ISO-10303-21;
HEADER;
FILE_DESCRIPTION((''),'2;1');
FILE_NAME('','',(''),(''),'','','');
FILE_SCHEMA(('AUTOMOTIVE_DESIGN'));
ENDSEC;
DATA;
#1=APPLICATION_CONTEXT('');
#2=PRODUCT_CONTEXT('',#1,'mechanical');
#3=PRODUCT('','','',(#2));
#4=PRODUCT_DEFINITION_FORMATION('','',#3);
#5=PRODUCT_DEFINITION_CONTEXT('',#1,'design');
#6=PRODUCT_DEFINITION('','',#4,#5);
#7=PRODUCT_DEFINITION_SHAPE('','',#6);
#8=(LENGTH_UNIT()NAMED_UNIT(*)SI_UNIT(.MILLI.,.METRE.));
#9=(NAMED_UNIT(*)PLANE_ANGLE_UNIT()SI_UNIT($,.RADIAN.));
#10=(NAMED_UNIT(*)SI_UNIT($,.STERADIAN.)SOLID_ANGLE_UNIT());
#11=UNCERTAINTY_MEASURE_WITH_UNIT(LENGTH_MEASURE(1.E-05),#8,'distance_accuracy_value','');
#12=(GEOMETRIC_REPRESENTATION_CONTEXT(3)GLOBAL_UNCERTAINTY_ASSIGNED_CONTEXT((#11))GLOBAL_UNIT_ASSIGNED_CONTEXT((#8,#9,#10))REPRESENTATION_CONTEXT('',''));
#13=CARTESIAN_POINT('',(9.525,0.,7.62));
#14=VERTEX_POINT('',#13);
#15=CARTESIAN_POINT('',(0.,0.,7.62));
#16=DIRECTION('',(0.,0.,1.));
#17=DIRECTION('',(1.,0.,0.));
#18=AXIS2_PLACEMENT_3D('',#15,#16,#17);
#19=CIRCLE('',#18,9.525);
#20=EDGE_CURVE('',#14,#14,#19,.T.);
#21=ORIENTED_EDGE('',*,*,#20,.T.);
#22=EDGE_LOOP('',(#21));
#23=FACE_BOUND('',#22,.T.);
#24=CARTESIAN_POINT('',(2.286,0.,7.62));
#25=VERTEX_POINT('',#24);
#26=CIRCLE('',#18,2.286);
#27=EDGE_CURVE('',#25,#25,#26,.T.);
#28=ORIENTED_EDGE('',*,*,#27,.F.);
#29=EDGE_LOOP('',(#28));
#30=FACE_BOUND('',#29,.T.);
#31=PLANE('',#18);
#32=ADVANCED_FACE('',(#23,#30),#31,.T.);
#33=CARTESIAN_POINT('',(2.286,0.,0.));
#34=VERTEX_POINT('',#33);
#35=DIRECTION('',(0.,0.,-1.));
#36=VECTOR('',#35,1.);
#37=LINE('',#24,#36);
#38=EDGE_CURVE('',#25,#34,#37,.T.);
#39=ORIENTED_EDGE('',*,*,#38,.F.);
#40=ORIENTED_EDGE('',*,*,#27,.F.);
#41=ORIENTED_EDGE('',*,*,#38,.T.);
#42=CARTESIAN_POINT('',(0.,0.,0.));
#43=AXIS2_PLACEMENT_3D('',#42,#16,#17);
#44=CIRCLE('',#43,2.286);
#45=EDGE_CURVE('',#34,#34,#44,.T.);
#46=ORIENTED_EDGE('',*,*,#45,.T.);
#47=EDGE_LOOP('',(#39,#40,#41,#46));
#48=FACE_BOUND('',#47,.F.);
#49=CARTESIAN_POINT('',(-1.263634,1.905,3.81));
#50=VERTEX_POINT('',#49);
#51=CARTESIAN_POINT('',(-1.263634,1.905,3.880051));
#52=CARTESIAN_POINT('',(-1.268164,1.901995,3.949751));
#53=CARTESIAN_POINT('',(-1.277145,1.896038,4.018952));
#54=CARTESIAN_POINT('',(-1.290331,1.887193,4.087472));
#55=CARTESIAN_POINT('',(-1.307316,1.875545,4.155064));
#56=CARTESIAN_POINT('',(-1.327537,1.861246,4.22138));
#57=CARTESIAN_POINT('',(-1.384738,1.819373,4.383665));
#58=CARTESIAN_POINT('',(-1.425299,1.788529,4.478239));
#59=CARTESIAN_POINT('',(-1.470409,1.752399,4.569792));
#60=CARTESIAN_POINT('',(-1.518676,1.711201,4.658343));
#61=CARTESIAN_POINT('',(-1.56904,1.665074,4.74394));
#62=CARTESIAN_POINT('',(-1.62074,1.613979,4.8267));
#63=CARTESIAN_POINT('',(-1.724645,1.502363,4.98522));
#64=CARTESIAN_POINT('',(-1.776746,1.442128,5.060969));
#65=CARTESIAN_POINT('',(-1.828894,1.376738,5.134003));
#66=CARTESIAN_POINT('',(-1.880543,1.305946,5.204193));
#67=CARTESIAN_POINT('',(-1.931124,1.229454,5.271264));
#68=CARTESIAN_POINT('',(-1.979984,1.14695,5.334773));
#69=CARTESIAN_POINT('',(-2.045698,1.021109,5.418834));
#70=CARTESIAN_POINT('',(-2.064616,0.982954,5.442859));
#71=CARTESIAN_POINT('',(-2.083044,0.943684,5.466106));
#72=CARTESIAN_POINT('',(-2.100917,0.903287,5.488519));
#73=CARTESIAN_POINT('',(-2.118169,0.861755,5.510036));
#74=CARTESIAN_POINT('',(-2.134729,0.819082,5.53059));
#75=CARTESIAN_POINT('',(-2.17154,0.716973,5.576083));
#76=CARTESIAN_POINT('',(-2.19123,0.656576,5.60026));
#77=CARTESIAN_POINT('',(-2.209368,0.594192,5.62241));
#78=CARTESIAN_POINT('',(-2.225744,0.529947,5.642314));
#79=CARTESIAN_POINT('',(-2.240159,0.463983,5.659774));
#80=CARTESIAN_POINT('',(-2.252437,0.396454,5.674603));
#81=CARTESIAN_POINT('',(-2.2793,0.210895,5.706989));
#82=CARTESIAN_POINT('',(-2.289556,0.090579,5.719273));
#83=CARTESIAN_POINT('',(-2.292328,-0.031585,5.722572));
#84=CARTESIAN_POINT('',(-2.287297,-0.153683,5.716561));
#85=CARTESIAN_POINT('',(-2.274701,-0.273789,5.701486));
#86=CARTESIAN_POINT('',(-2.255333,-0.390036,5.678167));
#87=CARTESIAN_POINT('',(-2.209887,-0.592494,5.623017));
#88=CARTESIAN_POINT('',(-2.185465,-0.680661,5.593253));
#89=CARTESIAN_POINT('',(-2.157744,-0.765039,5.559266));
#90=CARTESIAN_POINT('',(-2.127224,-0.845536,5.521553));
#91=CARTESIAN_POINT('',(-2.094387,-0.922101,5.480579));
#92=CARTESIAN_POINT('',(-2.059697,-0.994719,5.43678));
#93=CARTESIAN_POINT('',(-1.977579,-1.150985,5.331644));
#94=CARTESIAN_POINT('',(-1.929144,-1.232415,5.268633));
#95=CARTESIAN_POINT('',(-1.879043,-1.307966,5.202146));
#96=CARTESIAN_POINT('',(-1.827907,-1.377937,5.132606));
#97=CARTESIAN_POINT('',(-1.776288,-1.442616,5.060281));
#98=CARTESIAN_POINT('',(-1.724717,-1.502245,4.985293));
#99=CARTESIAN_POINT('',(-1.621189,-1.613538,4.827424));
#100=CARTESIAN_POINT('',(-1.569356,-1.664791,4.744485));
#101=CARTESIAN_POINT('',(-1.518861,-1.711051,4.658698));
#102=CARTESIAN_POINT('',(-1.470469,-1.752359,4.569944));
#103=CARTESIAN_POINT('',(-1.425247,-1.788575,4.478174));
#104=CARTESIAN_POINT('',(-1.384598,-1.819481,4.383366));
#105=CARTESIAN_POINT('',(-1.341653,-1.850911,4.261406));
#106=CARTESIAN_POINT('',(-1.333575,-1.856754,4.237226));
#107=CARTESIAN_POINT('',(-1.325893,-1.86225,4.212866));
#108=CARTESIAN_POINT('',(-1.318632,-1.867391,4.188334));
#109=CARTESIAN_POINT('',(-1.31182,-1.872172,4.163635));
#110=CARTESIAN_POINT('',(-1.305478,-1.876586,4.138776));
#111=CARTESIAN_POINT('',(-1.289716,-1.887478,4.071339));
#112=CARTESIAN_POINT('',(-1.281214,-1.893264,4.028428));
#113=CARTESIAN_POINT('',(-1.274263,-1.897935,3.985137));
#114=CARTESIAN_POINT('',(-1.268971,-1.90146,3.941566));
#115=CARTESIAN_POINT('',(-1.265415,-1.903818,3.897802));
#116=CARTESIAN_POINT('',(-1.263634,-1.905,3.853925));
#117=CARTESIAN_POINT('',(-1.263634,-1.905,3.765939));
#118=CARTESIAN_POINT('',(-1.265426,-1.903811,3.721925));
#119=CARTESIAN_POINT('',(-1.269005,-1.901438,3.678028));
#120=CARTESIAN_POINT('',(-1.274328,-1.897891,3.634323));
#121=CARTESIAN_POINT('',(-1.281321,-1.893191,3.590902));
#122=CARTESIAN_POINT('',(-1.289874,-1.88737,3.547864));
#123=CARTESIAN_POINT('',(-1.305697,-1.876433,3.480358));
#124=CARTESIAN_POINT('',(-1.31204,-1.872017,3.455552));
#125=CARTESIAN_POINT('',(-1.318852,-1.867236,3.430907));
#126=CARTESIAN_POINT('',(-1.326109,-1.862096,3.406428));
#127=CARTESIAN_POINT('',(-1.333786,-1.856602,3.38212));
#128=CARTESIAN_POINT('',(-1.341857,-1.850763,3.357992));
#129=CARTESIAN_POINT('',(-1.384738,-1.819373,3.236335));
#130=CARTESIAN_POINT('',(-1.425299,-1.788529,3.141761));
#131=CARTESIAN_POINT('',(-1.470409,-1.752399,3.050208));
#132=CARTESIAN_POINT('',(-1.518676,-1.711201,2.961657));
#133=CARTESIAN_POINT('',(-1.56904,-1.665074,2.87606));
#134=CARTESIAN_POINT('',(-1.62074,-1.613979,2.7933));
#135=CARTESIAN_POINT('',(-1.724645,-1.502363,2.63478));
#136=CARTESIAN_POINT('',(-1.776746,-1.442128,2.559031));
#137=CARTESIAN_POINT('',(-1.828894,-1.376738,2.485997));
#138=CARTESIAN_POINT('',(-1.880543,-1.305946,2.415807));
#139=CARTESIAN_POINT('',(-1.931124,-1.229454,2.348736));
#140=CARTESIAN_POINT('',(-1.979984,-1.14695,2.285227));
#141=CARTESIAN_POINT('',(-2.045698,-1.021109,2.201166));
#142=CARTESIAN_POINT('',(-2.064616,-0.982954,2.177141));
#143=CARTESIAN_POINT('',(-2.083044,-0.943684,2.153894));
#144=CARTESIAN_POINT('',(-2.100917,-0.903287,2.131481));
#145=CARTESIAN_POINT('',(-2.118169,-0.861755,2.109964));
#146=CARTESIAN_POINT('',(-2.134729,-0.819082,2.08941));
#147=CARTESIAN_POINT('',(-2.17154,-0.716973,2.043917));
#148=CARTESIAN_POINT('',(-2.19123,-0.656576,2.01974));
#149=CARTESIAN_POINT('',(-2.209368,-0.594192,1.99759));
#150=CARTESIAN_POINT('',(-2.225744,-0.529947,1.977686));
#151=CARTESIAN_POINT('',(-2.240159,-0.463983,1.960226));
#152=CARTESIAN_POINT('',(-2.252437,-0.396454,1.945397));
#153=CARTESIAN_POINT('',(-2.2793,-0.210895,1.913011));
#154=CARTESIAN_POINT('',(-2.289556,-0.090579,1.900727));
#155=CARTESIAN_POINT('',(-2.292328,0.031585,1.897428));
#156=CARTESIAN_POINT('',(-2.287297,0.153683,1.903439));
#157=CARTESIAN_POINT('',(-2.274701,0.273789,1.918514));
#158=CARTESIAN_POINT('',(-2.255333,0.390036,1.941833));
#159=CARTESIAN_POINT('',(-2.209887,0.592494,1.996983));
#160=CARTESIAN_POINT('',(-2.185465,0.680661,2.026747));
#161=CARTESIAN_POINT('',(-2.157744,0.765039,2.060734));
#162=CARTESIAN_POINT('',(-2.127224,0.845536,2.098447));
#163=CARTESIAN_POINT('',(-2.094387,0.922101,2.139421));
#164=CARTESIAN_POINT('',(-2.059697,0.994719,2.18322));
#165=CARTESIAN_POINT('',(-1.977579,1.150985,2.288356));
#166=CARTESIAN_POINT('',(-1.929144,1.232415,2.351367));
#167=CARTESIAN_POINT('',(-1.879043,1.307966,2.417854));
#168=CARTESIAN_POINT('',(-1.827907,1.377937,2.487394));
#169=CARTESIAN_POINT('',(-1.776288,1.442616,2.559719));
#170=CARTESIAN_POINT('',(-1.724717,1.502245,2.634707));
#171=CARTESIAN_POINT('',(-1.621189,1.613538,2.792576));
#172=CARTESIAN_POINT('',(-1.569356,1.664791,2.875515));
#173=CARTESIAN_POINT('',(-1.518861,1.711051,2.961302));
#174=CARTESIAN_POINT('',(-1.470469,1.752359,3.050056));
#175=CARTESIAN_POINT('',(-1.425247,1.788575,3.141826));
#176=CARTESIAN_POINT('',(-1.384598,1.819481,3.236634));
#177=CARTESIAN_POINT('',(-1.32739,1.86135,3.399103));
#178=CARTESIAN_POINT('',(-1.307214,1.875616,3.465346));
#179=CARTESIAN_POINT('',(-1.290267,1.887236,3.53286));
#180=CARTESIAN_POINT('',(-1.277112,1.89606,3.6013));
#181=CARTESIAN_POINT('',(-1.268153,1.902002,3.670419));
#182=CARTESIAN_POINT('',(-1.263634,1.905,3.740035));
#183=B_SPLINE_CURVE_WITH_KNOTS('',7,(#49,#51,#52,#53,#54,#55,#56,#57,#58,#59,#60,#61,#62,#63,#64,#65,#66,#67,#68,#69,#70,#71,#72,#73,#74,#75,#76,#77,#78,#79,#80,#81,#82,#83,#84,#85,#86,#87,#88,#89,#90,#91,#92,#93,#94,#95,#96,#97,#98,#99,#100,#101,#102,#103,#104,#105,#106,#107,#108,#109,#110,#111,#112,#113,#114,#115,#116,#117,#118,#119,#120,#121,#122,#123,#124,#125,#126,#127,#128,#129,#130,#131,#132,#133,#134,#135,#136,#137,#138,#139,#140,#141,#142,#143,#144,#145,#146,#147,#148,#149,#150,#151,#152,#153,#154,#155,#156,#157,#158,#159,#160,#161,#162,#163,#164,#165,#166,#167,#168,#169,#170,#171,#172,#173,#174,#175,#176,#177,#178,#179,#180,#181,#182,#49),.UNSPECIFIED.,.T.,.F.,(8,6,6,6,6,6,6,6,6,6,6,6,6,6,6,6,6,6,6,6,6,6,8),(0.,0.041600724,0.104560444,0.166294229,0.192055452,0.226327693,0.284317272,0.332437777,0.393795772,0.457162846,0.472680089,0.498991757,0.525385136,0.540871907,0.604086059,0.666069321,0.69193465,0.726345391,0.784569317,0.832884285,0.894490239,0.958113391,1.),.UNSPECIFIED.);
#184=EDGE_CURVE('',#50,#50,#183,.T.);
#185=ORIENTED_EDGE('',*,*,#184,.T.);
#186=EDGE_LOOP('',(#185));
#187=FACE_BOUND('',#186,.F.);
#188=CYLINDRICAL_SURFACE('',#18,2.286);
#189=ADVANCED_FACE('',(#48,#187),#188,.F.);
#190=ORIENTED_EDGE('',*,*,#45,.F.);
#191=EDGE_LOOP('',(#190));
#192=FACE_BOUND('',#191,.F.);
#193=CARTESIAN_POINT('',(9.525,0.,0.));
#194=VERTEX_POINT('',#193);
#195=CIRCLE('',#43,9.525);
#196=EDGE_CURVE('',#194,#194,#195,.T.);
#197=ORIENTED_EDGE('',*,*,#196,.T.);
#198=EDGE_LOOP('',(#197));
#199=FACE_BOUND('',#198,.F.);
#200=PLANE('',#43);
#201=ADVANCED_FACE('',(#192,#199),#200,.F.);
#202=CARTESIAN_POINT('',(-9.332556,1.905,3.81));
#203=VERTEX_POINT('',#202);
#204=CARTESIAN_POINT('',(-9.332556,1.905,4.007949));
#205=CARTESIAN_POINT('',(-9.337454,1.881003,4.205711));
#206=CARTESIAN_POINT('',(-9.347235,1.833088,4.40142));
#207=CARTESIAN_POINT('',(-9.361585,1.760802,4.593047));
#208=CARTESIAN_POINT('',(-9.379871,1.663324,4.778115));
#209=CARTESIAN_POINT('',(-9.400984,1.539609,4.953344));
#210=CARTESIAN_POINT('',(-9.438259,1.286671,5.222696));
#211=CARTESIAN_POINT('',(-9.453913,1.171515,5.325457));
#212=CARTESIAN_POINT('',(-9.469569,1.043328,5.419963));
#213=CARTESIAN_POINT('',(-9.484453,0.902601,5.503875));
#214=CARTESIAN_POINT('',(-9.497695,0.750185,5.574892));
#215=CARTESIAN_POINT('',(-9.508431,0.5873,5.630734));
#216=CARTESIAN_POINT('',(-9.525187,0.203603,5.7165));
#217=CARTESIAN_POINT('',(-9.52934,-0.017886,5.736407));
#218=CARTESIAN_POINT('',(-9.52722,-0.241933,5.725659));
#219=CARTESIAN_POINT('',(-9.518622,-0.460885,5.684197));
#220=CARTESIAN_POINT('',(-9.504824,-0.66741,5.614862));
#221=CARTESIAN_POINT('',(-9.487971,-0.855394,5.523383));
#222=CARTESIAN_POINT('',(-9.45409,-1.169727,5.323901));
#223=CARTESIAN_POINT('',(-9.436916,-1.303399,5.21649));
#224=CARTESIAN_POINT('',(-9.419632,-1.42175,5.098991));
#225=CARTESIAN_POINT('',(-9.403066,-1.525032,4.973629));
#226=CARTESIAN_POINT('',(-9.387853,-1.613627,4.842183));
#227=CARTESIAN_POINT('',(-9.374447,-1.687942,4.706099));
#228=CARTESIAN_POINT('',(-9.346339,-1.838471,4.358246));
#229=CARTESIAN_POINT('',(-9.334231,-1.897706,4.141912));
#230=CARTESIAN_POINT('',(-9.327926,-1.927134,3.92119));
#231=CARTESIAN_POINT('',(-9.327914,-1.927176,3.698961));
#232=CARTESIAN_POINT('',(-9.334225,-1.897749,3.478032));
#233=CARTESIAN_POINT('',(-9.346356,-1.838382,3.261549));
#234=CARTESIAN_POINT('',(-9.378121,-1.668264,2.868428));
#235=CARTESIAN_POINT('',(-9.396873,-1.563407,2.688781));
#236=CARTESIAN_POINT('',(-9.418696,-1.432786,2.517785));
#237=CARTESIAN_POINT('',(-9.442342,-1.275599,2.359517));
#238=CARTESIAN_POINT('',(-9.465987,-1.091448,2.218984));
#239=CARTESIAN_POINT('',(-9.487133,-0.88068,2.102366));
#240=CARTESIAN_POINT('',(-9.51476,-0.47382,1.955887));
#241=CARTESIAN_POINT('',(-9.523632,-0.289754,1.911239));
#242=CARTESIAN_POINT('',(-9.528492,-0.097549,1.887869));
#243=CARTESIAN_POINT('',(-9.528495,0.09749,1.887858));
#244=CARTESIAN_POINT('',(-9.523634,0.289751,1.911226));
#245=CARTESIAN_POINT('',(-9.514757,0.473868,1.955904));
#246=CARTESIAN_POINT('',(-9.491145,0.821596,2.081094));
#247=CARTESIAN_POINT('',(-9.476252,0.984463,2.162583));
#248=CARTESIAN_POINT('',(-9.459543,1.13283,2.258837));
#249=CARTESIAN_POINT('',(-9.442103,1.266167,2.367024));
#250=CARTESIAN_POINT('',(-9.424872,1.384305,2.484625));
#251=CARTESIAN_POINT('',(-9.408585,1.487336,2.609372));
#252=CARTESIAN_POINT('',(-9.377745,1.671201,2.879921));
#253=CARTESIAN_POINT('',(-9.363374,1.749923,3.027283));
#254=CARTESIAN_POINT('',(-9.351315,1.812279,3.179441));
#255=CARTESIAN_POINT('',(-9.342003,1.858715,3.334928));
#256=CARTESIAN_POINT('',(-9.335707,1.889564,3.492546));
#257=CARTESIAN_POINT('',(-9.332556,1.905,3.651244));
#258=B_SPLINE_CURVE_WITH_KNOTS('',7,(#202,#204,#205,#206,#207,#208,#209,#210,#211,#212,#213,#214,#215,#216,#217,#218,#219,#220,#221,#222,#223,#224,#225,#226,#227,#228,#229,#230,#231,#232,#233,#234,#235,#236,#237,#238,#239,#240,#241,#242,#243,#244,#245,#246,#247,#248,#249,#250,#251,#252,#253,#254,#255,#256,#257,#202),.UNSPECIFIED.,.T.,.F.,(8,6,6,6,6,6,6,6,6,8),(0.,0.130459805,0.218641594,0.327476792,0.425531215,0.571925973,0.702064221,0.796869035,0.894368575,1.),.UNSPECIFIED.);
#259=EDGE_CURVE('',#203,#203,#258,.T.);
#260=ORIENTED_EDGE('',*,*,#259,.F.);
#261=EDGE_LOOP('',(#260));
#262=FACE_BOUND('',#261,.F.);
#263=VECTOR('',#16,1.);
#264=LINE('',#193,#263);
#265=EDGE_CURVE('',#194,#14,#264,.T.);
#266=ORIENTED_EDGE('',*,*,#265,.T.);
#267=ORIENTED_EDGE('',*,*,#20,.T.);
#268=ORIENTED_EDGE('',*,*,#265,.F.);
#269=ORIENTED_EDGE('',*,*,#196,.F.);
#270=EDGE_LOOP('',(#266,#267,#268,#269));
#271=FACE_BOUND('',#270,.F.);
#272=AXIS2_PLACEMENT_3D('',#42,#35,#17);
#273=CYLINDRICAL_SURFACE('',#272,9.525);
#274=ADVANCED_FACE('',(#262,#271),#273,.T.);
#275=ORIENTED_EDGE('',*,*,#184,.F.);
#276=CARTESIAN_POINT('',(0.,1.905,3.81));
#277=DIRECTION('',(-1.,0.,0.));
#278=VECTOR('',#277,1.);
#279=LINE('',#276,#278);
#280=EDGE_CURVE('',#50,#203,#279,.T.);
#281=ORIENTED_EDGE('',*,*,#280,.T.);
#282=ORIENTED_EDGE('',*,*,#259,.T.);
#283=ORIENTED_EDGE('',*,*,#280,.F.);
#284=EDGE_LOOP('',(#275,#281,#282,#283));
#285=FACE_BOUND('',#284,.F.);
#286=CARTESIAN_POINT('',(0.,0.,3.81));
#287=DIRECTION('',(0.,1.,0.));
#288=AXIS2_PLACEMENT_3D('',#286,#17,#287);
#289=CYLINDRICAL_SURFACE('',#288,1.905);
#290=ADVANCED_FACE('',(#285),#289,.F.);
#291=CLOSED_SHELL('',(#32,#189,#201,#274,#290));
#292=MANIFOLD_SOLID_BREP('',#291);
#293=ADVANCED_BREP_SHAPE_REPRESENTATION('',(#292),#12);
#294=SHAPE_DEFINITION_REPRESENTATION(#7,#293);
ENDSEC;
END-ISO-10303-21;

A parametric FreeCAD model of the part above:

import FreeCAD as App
import Part
import Sketcher
from FreeCAD import Vector
Q = App.Units.Quantity

doc = App.newDocument("Part")
params = doc.addObject("Spreadsheet::Sheet", "Params")
for row, (alias, value) in enumerate([
    ("sketch1_diameter", "0.75 in"),
    ("pad1_length", "0.3 in"),
    ("sketch2_diameter", "0.18 in"),
    ("pocket1_length", "1 in"),
    ("sketch3_diameter", "0.15 in"),
    ("pocket2_length", "1 in"),
], start=1):
    params.set(f"A{row}", alias)
    params.set(f"B{row}", "=" + value)
    params.setAlias(f"B{row}", alias)

body = doc.addObject("PartDesign::Body", "Body")

# Sketch on XY plane
sketch1 = doc.addObject("Sketcher::SketchObject", "Sketch")
body.addObject(sketch1)
sketch1.AttachmentSupport = (doc.XY_Plane, [""])
sketch1.MapMode = "FlatFace"
sketch1.addGeometry(Part.Circle(Vector(0, 0, 0), Vector(0, 0, 1), 9.525), False)
sketch1.addConstraint(Sketcher.Constraint("Coincident", 0, 3, -1, 1))
sketch1.addConstraint(Sketcher.Constraint("Diameter", 0, Q("0.75 in")))
sketch1.setExpression("Constraints[1]", "Params.sketch1_diameter")
pad1 = doc.addObject("PartDesign::Pad", "Pad")
body.addObject(pad1)
pad1.Profile = sketch1
pad1.setExpression("Length", "Params.pad1_length")

# Sketch on XY plane
sketch2 = doc.addObject("Sketcher::SketchObject", "Sketch001")
body.addObject(sketch2)
sketch2.AttachmentSupport = (doc.XY_Plane, [""])
sketch2.MapMode = "FlatFace"
sketch2.AttachmentOffset = App.Placement(Vector(0, 0, 0.3 * 25.4), App.Rotation())
sketch2.addGeometry(Part.Circle(Vector(0, 0, 0), Vector(0, 0, 1), 2.286), False)
sketch2.addConstraint(Sketcher.Constraint("Coincident", 0, 3, -1, 1))
sketch2.addConstraint(Sketcher.Constraint("Diameter", 0, Q("0.18 in")))
sketch2.setExpression("Constraints[1]", "Params.sketch2_diameter")
pocket1 = doc.addObject("PartDesign::Pocket", "Pocket")
body.addObject(pocket1)
pocket1.Profile = sketch2
pocket1.setExpression("Length", "Params.pocket1_length")

# Sketch on YZ plane
sketch3 = doc.addObject("Sketcher::SketchObject", "Sketch002")
body.addObject(sketch3)
sketch3.AttachmentSupport = (doc.YZ_Plane, [""])
sketch3.MapMode = "FlatFace"
sketch3.addGeometry(Part.Circle(Vector(0, 3.81, 0), Vector(0, 0, 1), 1.905), False)
sketch3.addConstraint(Sketcher.Constraint("PointOnObject", 0, 3, -2))
sketch3.addConstraint(Sketcher.Constraint("Diameter", 0, Q("0.15 in")))
sketch3.addConstraint(Sketcher.Constraint("DistanceY", -1, 1, 0, 3, Q("0.15 in")))
sketch3.setExpression("Constraints[1]", "Params.sketch3_diameter")
pocket2 = doc.addObject("PartDesign::Pocket", "Pocket001")
body.addObject(pocket2)
pocket2.Profile = sketch3
pocket2.setExpression("Length", "Params.pocket2_length")

doc.recompute()
